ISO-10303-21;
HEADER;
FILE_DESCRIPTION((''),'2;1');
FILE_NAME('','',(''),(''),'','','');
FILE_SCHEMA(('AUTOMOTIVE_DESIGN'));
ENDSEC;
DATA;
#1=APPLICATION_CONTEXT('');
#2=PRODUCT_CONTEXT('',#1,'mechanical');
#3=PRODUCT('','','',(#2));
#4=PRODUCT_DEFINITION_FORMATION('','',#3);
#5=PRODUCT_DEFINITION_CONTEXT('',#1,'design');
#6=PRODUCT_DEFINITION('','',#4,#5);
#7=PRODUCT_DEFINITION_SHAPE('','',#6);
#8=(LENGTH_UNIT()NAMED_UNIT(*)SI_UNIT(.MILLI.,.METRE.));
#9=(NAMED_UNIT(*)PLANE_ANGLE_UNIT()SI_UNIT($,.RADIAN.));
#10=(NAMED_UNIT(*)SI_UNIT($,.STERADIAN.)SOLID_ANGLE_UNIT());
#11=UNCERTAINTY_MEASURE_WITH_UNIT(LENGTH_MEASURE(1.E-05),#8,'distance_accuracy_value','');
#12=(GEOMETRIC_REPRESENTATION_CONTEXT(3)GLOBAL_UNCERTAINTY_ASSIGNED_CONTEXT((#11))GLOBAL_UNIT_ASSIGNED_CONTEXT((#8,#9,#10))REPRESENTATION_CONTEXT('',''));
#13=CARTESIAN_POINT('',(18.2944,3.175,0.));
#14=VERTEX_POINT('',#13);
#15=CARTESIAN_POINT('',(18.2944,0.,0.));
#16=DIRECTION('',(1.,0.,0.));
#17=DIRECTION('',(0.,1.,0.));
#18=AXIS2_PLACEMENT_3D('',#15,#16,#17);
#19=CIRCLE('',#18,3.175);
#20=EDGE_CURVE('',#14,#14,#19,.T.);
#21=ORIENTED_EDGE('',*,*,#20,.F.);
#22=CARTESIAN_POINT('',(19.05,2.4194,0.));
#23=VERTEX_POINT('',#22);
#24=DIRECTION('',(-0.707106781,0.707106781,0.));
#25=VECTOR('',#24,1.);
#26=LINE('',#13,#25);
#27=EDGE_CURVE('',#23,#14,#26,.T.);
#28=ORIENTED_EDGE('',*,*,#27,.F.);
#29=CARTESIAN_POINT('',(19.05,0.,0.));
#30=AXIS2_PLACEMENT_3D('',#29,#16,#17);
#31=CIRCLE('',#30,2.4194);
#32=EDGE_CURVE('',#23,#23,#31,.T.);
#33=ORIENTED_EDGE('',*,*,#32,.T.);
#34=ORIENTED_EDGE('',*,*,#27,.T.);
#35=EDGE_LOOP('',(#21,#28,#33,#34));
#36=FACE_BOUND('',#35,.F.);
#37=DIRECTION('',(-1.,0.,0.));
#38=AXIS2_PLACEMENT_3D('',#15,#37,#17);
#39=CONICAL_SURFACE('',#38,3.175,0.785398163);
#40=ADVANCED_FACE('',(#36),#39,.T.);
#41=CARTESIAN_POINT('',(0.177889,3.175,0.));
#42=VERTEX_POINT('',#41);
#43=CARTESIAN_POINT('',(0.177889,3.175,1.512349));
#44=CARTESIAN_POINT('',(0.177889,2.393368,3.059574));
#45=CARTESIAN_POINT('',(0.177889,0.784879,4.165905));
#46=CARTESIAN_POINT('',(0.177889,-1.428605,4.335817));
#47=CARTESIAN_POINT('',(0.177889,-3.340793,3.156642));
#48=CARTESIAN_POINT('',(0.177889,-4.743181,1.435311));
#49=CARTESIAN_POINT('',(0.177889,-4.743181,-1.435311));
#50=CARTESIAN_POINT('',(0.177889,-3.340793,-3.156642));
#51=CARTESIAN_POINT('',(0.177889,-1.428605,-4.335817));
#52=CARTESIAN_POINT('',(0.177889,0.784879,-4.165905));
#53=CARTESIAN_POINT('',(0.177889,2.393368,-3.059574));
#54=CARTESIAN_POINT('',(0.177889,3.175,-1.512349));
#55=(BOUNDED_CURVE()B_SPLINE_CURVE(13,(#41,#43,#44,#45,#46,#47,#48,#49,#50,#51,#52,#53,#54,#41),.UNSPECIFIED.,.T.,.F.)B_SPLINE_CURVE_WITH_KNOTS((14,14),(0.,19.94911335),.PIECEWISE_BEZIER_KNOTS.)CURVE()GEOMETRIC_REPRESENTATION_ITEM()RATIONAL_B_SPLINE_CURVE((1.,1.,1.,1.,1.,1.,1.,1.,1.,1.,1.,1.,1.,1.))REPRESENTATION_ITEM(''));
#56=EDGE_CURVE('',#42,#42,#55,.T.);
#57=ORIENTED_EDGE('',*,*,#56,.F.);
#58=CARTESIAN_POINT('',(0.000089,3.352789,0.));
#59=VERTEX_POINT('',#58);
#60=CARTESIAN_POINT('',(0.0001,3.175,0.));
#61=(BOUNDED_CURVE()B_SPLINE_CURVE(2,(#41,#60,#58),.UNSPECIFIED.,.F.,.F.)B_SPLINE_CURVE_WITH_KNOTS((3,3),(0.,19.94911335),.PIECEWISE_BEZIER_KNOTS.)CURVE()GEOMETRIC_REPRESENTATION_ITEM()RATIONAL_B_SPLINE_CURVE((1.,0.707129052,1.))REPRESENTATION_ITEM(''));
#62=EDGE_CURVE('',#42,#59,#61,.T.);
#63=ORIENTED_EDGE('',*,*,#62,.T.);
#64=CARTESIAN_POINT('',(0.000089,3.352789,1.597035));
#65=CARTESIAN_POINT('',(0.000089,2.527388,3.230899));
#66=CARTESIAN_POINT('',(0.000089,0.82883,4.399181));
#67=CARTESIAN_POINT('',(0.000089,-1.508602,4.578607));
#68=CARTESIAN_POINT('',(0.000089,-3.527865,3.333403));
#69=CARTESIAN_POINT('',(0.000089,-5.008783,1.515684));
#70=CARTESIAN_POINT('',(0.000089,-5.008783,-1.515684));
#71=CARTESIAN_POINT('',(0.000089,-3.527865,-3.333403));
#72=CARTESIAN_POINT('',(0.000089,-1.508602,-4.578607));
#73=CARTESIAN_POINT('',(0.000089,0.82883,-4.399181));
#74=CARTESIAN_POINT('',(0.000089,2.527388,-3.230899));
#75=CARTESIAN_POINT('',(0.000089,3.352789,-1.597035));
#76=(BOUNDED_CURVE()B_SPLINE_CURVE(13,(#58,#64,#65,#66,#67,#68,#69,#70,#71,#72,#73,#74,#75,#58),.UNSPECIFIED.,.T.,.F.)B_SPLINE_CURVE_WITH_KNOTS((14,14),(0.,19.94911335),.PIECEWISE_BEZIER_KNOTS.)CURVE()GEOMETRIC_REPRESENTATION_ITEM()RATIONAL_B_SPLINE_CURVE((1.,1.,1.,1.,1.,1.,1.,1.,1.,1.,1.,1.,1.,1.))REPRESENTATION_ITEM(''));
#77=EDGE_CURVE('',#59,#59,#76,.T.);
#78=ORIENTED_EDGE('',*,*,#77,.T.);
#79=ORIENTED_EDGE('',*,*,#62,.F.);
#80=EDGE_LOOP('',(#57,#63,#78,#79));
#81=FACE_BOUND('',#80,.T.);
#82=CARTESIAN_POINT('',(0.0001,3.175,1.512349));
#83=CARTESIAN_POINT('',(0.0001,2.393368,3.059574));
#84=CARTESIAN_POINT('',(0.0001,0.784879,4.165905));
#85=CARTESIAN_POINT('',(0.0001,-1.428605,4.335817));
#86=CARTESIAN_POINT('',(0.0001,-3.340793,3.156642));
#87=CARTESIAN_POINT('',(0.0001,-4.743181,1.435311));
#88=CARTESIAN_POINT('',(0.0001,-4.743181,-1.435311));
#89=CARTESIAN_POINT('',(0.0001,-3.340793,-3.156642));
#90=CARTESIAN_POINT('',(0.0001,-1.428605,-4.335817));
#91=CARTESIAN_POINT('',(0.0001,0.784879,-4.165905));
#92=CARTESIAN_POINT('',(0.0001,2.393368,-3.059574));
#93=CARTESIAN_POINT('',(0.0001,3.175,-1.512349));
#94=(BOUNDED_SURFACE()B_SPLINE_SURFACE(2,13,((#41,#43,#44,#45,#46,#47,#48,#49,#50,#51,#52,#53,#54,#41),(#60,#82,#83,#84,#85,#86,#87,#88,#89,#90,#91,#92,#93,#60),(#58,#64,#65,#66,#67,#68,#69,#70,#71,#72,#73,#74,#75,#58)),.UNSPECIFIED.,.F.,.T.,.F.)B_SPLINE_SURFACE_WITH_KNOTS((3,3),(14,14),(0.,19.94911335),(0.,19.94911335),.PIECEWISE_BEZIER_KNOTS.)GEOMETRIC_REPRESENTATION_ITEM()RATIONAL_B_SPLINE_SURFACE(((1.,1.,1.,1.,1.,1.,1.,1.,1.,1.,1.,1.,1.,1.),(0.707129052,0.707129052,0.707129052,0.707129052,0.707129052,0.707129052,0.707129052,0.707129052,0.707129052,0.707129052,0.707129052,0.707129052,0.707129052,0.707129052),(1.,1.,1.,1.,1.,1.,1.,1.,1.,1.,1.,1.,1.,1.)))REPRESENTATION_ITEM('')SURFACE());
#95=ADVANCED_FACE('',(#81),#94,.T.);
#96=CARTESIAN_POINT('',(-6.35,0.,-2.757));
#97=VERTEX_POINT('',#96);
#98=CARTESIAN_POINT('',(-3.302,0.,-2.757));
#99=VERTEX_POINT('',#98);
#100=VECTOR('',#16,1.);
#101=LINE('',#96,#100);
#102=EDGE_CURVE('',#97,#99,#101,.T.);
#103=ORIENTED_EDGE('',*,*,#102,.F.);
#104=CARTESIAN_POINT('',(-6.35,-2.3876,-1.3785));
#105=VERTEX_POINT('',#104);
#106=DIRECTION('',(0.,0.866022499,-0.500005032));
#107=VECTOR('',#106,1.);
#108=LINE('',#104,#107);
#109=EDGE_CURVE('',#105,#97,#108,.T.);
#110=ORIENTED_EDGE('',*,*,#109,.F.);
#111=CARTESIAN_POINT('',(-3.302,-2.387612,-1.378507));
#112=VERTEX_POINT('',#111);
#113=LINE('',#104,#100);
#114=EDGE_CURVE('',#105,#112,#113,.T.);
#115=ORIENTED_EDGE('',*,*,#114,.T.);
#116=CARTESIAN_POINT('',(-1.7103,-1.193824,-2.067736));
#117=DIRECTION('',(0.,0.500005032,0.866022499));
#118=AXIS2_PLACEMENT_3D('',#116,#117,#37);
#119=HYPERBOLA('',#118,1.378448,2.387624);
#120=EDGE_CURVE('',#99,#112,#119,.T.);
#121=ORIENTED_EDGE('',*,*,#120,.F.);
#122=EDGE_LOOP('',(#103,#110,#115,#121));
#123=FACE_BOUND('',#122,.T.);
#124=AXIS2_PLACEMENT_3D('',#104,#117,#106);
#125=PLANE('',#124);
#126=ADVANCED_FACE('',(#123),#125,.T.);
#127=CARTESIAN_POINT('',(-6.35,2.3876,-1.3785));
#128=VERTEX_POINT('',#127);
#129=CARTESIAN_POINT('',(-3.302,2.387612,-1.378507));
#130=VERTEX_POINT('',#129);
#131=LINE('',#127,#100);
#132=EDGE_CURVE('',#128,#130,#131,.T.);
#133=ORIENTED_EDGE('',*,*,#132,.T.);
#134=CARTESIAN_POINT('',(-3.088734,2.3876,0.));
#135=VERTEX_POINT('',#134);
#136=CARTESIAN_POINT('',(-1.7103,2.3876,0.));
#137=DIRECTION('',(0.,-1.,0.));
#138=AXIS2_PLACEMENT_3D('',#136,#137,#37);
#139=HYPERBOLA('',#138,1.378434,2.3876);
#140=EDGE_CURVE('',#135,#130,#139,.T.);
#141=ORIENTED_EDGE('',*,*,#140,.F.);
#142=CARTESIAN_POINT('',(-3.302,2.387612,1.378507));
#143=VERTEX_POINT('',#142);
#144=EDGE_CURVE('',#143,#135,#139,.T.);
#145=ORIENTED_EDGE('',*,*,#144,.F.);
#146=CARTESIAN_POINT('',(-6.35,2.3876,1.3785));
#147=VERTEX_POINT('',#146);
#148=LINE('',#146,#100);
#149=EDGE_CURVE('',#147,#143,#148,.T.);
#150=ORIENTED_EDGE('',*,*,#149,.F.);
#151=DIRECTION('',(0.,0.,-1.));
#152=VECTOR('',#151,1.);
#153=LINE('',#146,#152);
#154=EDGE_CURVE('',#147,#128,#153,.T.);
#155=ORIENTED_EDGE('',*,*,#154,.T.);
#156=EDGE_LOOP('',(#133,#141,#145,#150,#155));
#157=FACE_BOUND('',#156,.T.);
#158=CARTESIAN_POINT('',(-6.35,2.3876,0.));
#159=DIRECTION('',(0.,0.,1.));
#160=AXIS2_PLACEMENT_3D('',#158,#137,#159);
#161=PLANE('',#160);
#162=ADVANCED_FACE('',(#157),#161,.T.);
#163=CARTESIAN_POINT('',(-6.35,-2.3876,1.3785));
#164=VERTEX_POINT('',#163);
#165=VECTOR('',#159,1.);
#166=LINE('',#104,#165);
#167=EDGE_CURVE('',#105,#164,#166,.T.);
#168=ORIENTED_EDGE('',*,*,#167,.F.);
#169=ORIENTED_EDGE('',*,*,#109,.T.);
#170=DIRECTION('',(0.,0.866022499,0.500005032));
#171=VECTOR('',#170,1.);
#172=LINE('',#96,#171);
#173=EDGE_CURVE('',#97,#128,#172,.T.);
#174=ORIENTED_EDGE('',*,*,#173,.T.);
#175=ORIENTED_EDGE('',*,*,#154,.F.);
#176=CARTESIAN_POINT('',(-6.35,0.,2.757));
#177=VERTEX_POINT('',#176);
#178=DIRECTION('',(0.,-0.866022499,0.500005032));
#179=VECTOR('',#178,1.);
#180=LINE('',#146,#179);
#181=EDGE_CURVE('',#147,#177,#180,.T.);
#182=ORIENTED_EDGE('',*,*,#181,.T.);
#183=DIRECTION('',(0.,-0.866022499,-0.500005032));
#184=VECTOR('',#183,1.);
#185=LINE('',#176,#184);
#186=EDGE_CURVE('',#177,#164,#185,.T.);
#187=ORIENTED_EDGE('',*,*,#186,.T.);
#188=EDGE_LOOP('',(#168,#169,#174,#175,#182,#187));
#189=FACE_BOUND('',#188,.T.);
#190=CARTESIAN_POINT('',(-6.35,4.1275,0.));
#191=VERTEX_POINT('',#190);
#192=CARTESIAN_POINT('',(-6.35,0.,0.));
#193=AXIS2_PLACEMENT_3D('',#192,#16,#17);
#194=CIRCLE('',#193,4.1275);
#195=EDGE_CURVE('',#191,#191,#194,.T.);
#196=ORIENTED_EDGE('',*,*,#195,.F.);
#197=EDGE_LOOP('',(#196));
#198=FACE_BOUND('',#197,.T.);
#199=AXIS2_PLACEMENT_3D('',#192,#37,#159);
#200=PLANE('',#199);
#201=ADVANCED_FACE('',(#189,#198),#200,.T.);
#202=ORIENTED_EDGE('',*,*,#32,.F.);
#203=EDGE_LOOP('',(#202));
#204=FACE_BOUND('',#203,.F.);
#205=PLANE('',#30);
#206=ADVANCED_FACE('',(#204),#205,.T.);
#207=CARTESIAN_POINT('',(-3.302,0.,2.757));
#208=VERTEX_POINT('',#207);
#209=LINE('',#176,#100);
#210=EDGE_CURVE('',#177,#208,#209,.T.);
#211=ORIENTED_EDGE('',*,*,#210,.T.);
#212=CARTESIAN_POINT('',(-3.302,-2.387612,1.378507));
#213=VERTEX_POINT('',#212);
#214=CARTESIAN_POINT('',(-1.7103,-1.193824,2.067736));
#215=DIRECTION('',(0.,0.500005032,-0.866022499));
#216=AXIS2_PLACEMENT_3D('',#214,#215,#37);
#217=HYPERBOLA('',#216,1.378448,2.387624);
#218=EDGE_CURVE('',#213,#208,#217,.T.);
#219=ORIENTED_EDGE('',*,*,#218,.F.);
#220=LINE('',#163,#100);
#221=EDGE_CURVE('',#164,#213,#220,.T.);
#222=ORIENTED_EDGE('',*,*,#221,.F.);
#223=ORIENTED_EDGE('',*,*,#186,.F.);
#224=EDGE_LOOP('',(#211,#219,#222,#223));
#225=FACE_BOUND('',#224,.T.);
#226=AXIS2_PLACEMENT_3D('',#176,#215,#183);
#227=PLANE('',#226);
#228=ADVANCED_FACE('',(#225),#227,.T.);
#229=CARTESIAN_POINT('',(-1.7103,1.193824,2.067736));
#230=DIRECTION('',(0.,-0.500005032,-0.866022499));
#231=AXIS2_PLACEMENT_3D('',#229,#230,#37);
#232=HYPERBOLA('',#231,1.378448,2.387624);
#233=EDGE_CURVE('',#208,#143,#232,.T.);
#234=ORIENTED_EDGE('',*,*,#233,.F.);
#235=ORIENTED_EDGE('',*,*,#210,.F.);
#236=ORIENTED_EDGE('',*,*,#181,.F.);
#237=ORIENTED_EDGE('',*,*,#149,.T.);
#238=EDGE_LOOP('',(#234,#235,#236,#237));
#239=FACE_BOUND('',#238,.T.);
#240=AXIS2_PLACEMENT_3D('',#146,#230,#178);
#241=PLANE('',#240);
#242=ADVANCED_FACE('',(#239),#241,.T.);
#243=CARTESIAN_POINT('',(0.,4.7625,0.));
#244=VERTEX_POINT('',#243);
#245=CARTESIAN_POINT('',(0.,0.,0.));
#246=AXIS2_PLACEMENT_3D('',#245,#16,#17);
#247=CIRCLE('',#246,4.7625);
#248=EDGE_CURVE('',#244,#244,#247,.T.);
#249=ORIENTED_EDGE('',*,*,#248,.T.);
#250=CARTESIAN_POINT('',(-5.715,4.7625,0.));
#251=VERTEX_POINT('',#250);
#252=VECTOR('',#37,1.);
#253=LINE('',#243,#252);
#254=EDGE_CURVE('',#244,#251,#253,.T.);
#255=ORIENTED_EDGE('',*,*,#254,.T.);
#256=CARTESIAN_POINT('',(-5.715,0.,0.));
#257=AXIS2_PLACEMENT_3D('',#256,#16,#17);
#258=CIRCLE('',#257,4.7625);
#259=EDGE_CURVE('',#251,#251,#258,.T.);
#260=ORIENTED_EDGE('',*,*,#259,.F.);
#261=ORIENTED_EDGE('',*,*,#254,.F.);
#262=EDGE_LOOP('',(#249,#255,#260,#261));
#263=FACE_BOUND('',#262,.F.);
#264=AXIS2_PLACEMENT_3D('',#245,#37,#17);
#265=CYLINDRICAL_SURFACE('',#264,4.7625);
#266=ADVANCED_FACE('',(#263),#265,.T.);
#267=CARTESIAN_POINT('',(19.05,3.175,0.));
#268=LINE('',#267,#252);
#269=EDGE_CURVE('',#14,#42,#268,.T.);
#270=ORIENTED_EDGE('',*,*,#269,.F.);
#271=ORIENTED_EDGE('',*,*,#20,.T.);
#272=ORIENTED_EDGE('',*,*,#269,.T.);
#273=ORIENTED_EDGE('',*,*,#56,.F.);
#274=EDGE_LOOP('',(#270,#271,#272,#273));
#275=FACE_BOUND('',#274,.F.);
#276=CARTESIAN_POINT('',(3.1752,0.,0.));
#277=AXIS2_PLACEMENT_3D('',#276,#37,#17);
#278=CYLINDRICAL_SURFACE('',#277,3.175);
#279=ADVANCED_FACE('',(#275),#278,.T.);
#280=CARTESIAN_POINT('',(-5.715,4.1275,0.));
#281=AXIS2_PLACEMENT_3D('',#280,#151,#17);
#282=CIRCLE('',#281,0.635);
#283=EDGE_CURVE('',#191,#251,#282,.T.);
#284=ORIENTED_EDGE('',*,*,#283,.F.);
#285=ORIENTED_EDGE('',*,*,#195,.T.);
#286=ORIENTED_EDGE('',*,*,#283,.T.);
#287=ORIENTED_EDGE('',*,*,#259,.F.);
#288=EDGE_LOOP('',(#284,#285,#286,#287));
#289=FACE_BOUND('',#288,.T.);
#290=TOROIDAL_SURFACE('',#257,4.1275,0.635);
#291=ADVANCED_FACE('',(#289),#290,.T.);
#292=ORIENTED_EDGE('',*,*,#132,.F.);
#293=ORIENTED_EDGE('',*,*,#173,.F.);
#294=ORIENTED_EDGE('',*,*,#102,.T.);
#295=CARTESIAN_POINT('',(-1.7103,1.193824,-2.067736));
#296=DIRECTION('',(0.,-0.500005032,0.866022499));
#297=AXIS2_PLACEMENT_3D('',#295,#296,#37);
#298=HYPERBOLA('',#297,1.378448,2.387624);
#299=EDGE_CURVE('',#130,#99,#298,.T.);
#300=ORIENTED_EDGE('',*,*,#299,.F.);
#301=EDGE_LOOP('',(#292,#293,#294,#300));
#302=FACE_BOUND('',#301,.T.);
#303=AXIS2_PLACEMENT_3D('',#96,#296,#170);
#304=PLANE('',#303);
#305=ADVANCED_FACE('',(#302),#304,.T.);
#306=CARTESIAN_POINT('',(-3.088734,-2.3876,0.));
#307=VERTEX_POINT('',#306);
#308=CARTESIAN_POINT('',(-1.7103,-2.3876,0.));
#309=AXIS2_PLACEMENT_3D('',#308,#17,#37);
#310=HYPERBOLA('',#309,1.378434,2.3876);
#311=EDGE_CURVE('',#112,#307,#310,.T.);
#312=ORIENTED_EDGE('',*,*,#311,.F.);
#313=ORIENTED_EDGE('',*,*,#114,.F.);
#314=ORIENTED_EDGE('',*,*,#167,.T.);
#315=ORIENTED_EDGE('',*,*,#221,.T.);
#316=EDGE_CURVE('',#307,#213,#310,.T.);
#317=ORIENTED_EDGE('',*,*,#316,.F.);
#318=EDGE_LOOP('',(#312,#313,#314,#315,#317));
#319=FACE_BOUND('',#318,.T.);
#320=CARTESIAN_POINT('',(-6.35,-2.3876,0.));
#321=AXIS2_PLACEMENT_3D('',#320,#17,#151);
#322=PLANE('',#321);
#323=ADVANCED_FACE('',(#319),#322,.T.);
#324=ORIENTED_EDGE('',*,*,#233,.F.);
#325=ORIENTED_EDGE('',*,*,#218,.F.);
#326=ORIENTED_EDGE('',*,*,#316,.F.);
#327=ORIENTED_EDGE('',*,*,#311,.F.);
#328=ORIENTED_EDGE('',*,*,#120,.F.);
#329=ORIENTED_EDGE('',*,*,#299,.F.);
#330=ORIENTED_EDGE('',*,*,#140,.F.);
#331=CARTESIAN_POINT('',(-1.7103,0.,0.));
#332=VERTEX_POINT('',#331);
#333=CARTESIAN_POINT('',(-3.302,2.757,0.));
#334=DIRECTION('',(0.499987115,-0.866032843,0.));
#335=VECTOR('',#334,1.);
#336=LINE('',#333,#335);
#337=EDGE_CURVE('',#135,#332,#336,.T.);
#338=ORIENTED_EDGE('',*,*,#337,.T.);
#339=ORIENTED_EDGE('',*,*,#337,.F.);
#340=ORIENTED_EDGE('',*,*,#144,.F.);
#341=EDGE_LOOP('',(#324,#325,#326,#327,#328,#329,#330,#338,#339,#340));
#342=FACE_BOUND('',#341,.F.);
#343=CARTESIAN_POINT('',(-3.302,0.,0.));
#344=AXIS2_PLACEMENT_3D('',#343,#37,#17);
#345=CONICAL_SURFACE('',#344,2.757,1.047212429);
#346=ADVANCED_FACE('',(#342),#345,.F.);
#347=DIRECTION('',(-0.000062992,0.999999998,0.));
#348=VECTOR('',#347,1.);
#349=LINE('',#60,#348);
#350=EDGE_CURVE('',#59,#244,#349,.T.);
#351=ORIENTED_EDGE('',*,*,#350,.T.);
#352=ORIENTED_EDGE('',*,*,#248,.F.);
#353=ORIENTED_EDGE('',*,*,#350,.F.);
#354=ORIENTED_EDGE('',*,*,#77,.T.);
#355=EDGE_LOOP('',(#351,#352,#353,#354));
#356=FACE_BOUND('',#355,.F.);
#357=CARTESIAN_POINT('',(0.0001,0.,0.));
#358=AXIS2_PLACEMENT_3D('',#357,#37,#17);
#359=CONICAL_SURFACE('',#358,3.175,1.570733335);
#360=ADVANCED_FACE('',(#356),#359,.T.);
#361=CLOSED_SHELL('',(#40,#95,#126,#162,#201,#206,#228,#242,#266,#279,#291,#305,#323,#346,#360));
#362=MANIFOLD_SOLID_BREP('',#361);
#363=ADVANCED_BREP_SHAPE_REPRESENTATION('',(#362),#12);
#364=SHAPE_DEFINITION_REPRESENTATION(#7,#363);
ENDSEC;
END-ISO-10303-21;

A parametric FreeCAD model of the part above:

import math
import FreeCAD as App
import Part
import Sketcher

V = App.Vector
Q = App.Units.Quantity


def edges_at(feature, points):
    """Names of the edges that pass closest to the given points."""
    edges = feature.Shape.Edges
    near = lambda p: min(range(len(edges)), key=lambda i: edges[i].distToShape(Part.Vertex(*p))[0])
    return sorted({f"Edge{near(p) + 1}" for p in points})


def add_polygon(sketch, points):
    """Adds a closed chain of lines whose ends are joined by coincident constraints."""
    first, n = sketch.GeometryCount, len(points)
    for a, b in zip(points, points[1:] + points[:1]):
        sketch.addGeometry(Part.LineSegment(App.Vector(*a, 0), App.Vector(*b, 0)), False)
    for i in range(n):
        sketch.addConstraint(Sketcher.Constraint("Coincident", first + i, 2, first + (i + 1) % n, 1))

doc = App.newDocument("Part")
body = doc.addObject("PartDesign::Body", "Body")

# Sketch on XY plane
sketch1 = body.newObject("Sketcher::SketchObject", "Sketch")
sketch1.AttachmentSupport = (doc.getObject("XY_Plane"), [""])
sketch1.MapMode = "FlatFace"
add_polygon(sketch1, [(-3.3, 2.8), (-1.7, 0), (19.1, 0), (19.1, 3.2), (0, 3.2), (0, 4.8), (-6.3, 4.8), (-6.3, 2.8)])  # lines 0-7
sketch1.addConstraint([
    Sketcher.Constraint("Horizontal", 1),
    Sketcher.Constraint("Vertical", 2),
    Sketcher.Constraint("Horizontal", 3),
    Sketcher.Constraint("Vertical", 4),
    Sketcher.Constraint("Horizontal", 5),
    Sketcher.Constraint("Vertical", 6),
    Sketcher.Constraint("Horizontal", 7),
    Sketcher.Constraint("PointOnObject", 0, 2, -1),
    Sketcher.Constraint("PointOnObject", 3, 2, -2),
    Sketcher.Constraint("DistanceX", 3, 2, 3, 1, Q("0.75 in")),
    Sketcher.Constraint("DistanceX", 5, 2, 5, 1, Q("0.25 in")),
    Sketcher.Constraint("DistanceX", 7, 1, 7, 2, Q("0.12 in")),
    Sketcher.Constraint("DistanceY", 2, 1, 2, 2, Q("0.125 in")),
    Sketcher.Constraint("Angle", 0, Q("-60.0009 deg")),
    Sketcher.Constraint("DistanceY", 4, 1, 4, 2, Q("0.0625 in")),
    Sketcher.Constraint("DistanceX", 1, 1, 1, 2, Q("20.7603 mm")),
])
revolution = body.newObject("PartDesign::Revolution", "Revolution")
revolution.Profile = sketch1
revolution.ReferenceAxis = (sketch1, ["H_Axis"])
revolution.Angle = 360

# Sketch on YZ plane
sketch2 = body.newObject("Sketcher::SketchObject", "Sketch001")
sketch2.AttachmentSupport = (doc.getObject("YZ_Plane"), [""])
sketch2.MapMode = "FlatFace"
sketch2.AttachmentOffset = App.Placement(V(0, 0, -0.25 * 25.4), App.Rotation())
sketch2.addGeometry([
    Part.LineSegment(V(2.4, 1.4, 0), V(0, 2.8, 0)),  # 0
    Part.ArcOfCircle(Part.Circle(V(0, 0, 0), V(0, 0, 1), 2.8), math.radians(30), math.radians(90)),  # 1
    Part.ArcOfCircle(Part.Circle(V(0, 0, 0), V(0, 0, 1), 2.8), math.radians(90), math.radians(150)),  # 2
    Part.LineSegment(V(0, 2.8, 0), V(-2.4, 1.4, 0)),  # 3
    Part.ArcOfCircle(Part.Circle(V(0, 0, 0), V(0, 0, 1), 2.8), math.radians(-30), math.radians(30)),  # 4
    Part.LineSegment(V(2.4, 1.4, 0), V(2.4, -1.4, 0)),  # 5
    Part.LineSegment(V(-2.4, 1.4, 0), V(-2.4, -1.4, 0)),  # 6
    Part.ArcOfCircle(Part.Circle(V(0, 0, 0), V(0, 0, 1), 2.8), math.radians(150), math.radians(210)),  # 7
    Part.LineSegment(V(-2.4, -1.4, 0), V(0, -2.8, 0)),  # 8
    Part.ArcOfCircle(Part.Circle(V(0, 0, 0), V(0, 0, 1), 2.8), math.radians(-150), math.radians(-90)),  # 9
    Part.ArcOfCircle(Part.Circle(V(0, 0, 0), V(0, 0, 1), 2.8), math.radians(-90), math.radians(-30)),  # 10
    Part.LineSegment(V(0, -2.8, 0), V(2.4, -1.4, 0)),  # 11
], False)
sketch2.addConstraint([
    Sketcher.Constraint("Coincident", 0, 1, 1, 1),
    Sketcher.Constraint("Coincident", 1, 2, 0, 2),
    Sketcher.Constraint("Coincident", 2, 1, 3, 1),
    Sketcher.Constraint("Coincident", 3, 2, 2, 2),
    Sketcher.Constraint("Coincident", 4, 1, 5, 2),
    Sketcher.Constraint("Coincident", 5, 1, 4, 2),
    Sketcher.Constraint("Coincident", 6, 1, 7, 1),
    Sketcher.Constraint("Coincident", 7, 2, 6, 2),
    Sketcher.Constraint("Coincident", 8, 1, 9, 1),
    Sketcher.Constraint("Coincident", 9, 2, 8, 2),
    Sketcher.Constraint("Coincident", 10, 1, 11, 1),
    Sketcher.Constraint("Coincident", 11, 2, 10, 2),
    Sketcher.Constraint("Vertical", 5),
    Sketcher.Constraint("Vertical", 6),
    Sketcher.Constraint("Coincident", 1, 3, -1, 1),
    Sketcher.Constraint("Coincident", 2, 3, -1, 1),
    Sketcher.Constraint("Coincident", 4, 3, -1, 1),
    Sketcher.Constraint("Coincident", 7, 3, -1, 1),
    Sketcher.Constraint("Coincident", 9, 3, -1, 1),
    Sketcher.Constraint("Coincident", 10, 3, -1, 1),
    Sketcher.Constraint("Coincident", 2, 1, 1, 2),
    Sketcher.Constraint("Coincident", 5, 1, 0, 1),
    Sketcher.Constraint("Coincident", 6, 1, 3, 2),
    Sketcher.Constraint("Coincident", 8, 1, 7, 2),
    Sketcher.Constraint("Coincident", 10, 1, 9, 2),
    Sketcher.Constraint("PointOnObject", 1, 2, -2),
    Sketcher.Constraint("PointOnObject", 9, 2, -2),
    Sketcher.Constraint("Parallel", 0, 8),
    Sketcher.Constraint("Parallel", 3, 11),
    Sketcher.Constraint("Angle", 0, Q("149.9997 deg")),
    Sketcher.Constraint("Radius", 1, Q("2.757 mm")),
])
pad1 = body.newObject("PartDesign::Pad", "Pad")
pad1.Profile = sketch2
pad1.Type = "UpToFirst"
doc.recompute()

fillet = body.newObject("PartDesign::Fillet", "Fillet")
fillet.Base = (pad1, edges_at(pad1, [(-6.35, -4.763, 0)]))
fillet.Radius = Q("0.025 in")
doc.recompute()

chamfer = body.newObject("PartDesign::Chamfer", "Chamfer")
chamfer.Base = (fillet, edges_at(fillet, [(19.05, -3.175, 0)]))
chamfer.ChamferType = "Two distances"
chamfer.Size = 0.7556
chamfer.Size2 = 0.7556
doc.recompute()

fillet2 = body.newObject("PartDesign::Fillet", "Fillet001")
fillet2.Base = (chamfer, edges_at(chamfer, [(0, -3.175, 0)]))
fillet2.Radius = Q("0.007 in")

doc.recompute()
